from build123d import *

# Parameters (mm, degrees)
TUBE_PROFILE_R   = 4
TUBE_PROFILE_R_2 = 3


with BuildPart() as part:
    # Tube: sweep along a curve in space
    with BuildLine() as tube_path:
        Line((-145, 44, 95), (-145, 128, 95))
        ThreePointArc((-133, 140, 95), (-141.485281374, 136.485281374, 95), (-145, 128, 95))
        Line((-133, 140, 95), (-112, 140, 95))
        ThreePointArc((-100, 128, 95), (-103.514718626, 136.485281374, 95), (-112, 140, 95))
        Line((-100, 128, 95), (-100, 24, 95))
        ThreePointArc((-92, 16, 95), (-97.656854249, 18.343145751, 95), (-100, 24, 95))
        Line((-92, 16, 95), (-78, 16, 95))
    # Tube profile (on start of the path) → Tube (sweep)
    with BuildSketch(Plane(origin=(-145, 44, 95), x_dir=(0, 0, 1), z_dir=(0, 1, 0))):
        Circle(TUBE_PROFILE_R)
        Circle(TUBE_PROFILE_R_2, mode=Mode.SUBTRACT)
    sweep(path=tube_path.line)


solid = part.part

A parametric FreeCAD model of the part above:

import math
import FreeCAD as App
import Part
import Sketcher

doc = App.newDocument("Part")
body = doc.addObject("PartDesign::Body", "Body")

sketch1 = body.newObject("Sketcher::SketchObject", "Sketch")
sketch1.AttachmentSupport = (doc.getObject("XZ_Plane"), [""])
sketch1.MapMode = "FlatFace"
sketch1.AttachmentOffset = App.Placement(App.Vector(0, 0, -44), App.Rotation())
sketch1.addGeometry([
    Part.Circle(App.Vector(-145, 95, 0), App.Vector(0, 0, 1), 4),
    Part.Circle(App.Vector(-145, 95, 0), App.Vector(0, 0, 1), 3),
], False)
sketch1.addConstraint([
    Sketcher.Constraint("Coincident", 1, 3, 0, 3),
    Sketcher.Constraint("Diameter", 0, 8.0),
    Sketcher.Constraint("Diameter", 1, 6.0),
    Sketcher.Constraint("DistanceX", 0, 3, -1, 1, 145.0),
    Sketcher.Constraint("DistanceY", -1, 1, 0, 3, 95.0),
])

sketch2 = body.newObject("Sketcher::SketchObject", "Sketch001")
sketch2.AttachmentSupport = (doc.getObject("XY_Plane"), [""])
sketch2.MapMode = "FlatFace"
sketch2.AttachmentOffset = App.Placement(App.Vector(0, 0, 95), App.Rotation())
sketch2.addGeometry([
    Part.LineSegment(App.Vector(-145, 44, 0), App.Vector(-145, 128, 0)),
    Part.ArcOfCircle(Part.Circle(App.Vector(-133, 128, 0), App.Vector(0, 0, 1), 12), math.radians(90), math.radians(180)),
    Part.LineSegment(App.Vector(-133, 140, 0), App.Vector(-112, 140, 0)),
    Part.ArcOfCircle(Part.Circle(App.Vector(-112, 128, 0), App.Vector(0, 0, 1), 12), math.radians(0), math.radians(90)),
    Part.LineSegment(App.Vector(-100, 128, 0), App.Vector(-100, 24, 0)),
    Part.ArcOfCircle(Part.Circle(App.Vector(-92, 24, 0), App.Vector(0, 0, 1), 8), math.radians(-180), math.radians(-90)),
    Part.LineSegment(App.Vector(-92, 16, 0), App.Vector(-78, 16, 0)),
], False)
sketch2.addConstraint([
    Sketcher.Constraint("Tangent", 0, 2, 1, 2),
    Sketcher.Constraint("Tangent", 1, 1, 2, 1),
    Sketcher.Constraint("Tangent", 2, 2, 3, 2),
    Sketcher.Constraint("Tangent", 3, 1, 4, 1),
    Sketcher.Constraint("Tangent", 4, 2, 5, 1),
    Sketcher.Constraint("Tangent", 5, 2, 6, 1),
    Sketcher.Constraint("Vertical", 0),
    Sketcher.Constraint("Horizontal", 2),
    Sketcher.Constraint("Vertical", 4),
    Sketcher.Constraint("Horizontal", 6),
    Sketcher.Constraint("Equal", 1, 3),
    Sketcher.Constraint("Radius", 1, 12.0),
    Sketcher.Constraint("Radius", 5, 8.0),
    Sketcher.Constraint("DistanceX", 2, 1, 2, 2, 21.0),
    Sketcher.Constraint("DistanceX", 6, 1, 6, 2, 14.0),
    Sketcher.Constraint("DistanceY", 0, 1, 0, 2, 84.0),
    Sketcher.Constraint("DistanceY", 4, 2, 4, 1, 104.0),
    Sketcher.Constraint("DistanceX", 1, 3, -1, 1, 133.0),
    Sketcher.Constraint("DistanceY", -1, 1, 1, 3, 128.0),
])
doc.recompute()

additivepipe = body.newObject("PartDesign::AdditivePipe", "AdditivePipe")
additivepipe.Profile = sketch1
additivepipe.Spine = (sketch2, ["Edge1", "Edge2", "Edge3", "Edge4", "Edge5", "Edge6", "Edge7"])

doc.recompute()
